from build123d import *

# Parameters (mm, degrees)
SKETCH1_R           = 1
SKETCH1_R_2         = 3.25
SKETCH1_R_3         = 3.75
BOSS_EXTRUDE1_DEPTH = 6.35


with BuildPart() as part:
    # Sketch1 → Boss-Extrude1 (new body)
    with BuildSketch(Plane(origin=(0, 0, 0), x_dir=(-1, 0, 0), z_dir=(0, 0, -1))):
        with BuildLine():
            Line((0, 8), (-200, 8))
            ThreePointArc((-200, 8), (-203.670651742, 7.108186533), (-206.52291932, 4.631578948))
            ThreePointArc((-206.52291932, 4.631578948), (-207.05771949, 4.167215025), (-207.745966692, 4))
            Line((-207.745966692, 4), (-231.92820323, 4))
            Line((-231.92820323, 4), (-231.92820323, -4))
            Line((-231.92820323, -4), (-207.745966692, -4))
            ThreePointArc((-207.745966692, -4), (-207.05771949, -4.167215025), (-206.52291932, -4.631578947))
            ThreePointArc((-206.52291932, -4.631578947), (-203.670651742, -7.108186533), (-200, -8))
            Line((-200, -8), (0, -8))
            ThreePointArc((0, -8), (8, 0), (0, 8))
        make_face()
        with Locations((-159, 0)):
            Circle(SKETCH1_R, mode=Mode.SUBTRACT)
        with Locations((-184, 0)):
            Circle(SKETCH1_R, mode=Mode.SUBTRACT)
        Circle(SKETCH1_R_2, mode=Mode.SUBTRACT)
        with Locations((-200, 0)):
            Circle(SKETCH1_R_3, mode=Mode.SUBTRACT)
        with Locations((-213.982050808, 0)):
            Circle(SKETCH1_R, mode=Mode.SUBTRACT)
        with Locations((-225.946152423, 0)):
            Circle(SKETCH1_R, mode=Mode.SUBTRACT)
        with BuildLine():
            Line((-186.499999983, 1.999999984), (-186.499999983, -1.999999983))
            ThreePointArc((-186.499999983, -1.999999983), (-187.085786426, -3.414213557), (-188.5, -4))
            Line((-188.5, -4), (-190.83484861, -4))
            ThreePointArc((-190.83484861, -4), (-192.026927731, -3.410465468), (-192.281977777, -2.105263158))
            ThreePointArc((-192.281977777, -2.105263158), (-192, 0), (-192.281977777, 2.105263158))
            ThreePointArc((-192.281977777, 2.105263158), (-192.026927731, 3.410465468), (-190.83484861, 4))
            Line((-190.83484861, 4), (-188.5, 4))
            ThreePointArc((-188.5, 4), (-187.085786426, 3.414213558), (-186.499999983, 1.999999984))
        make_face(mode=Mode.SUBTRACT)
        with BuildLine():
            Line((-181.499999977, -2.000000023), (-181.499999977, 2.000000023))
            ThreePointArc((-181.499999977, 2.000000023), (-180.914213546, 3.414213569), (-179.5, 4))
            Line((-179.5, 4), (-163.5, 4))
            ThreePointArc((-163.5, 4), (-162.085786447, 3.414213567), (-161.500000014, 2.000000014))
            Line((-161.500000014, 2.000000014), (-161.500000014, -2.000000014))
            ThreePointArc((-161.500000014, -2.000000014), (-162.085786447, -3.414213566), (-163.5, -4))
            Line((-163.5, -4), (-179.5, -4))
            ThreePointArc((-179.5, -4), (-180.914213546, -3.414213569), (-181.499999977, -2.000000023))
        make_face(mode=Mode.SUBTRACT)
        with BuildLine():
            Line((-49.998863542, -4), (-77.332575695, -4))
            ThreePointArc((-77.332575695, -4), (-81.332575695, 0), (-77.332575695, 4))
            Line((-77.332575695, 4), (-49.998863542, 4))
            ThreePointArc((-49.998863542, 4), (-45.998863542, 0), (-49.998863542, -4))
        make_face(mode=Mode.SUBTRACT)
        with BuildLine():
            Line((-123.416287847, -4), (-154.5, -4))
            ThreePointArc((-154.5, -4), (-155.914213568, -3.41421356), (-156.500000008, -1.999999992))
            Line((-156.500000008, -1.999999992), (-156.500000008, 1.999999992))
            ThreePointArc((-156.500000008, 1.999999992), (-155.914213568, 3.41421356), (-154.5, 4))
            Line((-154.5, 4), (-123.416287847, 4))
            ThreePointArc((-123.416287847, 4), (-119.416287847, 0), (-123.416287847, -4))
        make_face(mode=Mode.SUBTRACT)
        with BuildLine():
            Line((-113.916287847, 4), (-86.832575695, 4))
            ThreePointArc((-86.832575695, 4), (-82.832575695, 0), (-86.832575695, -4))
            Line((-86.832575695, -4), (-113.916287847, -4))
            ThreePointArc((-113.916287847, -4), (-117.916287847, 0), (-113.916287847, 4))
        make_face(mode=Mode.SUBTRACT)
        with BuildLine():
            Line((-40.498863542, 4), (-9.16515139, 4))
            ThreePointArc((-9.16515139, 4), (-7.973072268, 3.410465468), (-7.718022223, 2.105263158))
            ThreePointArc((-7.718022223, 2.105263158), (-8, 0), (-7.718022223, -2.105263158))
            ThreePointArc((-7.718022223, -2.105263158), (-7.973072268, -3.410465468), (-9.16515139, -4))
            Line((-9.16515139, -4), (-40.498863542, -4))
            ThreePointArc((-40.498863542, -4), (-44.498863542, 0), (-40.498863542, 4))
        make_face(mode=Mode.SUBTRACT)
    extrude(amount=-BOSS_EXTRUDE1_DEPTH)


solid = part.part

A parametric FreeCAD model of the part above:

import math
import FreeCAD as App
import Part
import Sketcher

V = App.Vector

doc = App.newDocument("Part")
params = doc.addObject("Spreadsheet::Sheet", "Params")
for row, (alias, value) in enumerate([
    ("sketch1_diameter", "2 mm"),
    ("sketch1_radius", "8 mm"),
    ("sketch1_radius2", "2 mm"),
    ("sketch1_radius3", "4 mm"),
    ("sketch1_diameter2", "7.5 mm"),
    ("pad1_length", "6.35 mm"),
], start=1):
    params.set(f"A{row}", alias)
    params.set(f"B{row}", "=" + value)
    params.setAlias(f"B{row}", alias)

body = doc.addObject("PartDesign::Body", "Body")

sketch1 = doc.addObject("Sketcher::SketchObject", "Sketch")
body.addObject(sketch1)
sketch1.AttachmentSupport = (doc.XY_Plane, [""])
sketch1.MapMode = "FlatFace"
sketch1.addGeometry([
    Part.LineSegment(V(0, 8, 0), V(200, 8, 0)),
    Part.ArcOfCircle(Part.Circle(V(200, 0, 0), V(0, 0, 1), 8), math.radians(35.37654), math.radians(90)),
    Part.ArcOfCircle(Part.Circle(V(207.745967, 5.5, 0), V(0, 0, 1), 1.5), math.radians(-144.62346), math.radians(-90)),
    Part.LineSegment(V(207.745967, 4, 0), V(231.928203, 4, 0)),
    Part.LineSegment(V(231.928203, 4, 0), V(231.928203, -4, 0)),
    Part.LineSegment(V(231.928203, -4, 0), V(207.745967, -4, 0)),
    Part.ArcOfCircle(Part.Circle(V(207.745967, -5.5, 0), V(0, 0, 1), 1.5), math.radians(90), math.radians(144.62346)),
    Part.ArcOfCircle(Part.Circle(V(200, 0, 0), V(0, 0, 1), 8), math.radians(-90), math.radians(-35.37654)),
    Part.LineSegment(V(200, -8, 0), V(0, -8, 0)),
    Part.ArcOfCircle(Part.Circle(V(0, 0, 0), V(0, 0, 1), 8), math.radians(90), math.radians(270)),
    Part.ArcOfCircle(Part.Circle(V(179.5, -2, 0), V(0, 0, 1), 2), math.radians(-90), math.radians(0)),
    Part.LineSegment(V(181.5, -2, 0), V(181.5, 2, 0)),
    Part.ArcOfCircle(Part.Circle(V(179.5, 2, 0), V(0, 0, 1), 2), math.radians(0), math.radians(90)),
    Part.LineSegment(V(179.5, 4, 0), V(163.5, 4, 0)),
    Part.ArcOfCircle(Part.Circle(V(163.5, 2, 0), V(0, 0, 1), 2), math.radians(90), math.radians(180)),
    Part.LineSegment(V(161.5, 2, 0), V(161.5, -2, 0)),
    Part.ArcOfCircle(Part.Circle(V(163.5, -2, 0), V(0, 0, 1), 2), math.radians(180), math.radians(270)),
    Part.LineSegment(V(163.5, -4, 0), V(179.5, -4, 0)),
    Part.Circle(V(225.946152, 0, 0), V(0, 0, 1), 1),
    Part.Circle(V(213.982051, 0, 0), V(0, 0, 1), 1),
    Part.Circle(V(200, 0, 0), V(0, 0, 1), 3.75),
    Part.ArcOfCircle(Part.Circle(V(188.5, 2, 0), V(0, 0, 1), 2), math.radians(90), math.radians(180)),
    Part.LineSegment(V(186.5, 2, 0), V(186.5, -2, 0)),
    Part.ArcOfCircle(Part.Circle(V(188.5, -2, 0), V(0, 0, 1), 2), math.radians(-180), math.radians(-90)),
    Part.LineSegment(V(188.5, -4, 0), V(190.834849, -4, 0)),
    Part.ArcOfCircle(Part.Circle(V(190.834849, -2.5, 0), V(0, 0, 1), 1.5), math.radians(-90), math.radians(15.257523)),
    Part.ArcOfCircle(Part.Circle(V(200, 0, 0), V(0, 0, 1), 8), math.radians(164.742477), math.radians(195.257523)),
    Part.ArcOfCircle(Part.Circle(V(190.834849, 2.5, 0), V(0, 0, 1), 1.5), math.radians(-15.257523), math.radians(90)),
    Part.LineSegment(V(190.834849, 4, 0), V(188.5, 4, 0)),
    Part.Circle(V(184, 0, 0), V(0, 0, 1), 1),
    Part.Circle(V(159, 0, 0), V(0, 0, 1), 1),
    Part.ArcOfCircle(Part.Circle(V(123.416288, 0, 0), V(0, 0, 1), 4), math.radians(90), math.radians(270)),
    Part.LineSegment(V(123.416288, -4, 0), V(154.5, -4, 0)),
    Part.ArcOfCircle(Part.Circle(V(154.5, -2, 0), V(0, 0, 1), 2), math.radians(-90), math.radians(0)),
    Part.LineSegment(V(156.5, -2, 0), V(156.5, 2, 0)),
    Part.ArcOfCircle(Part.Circle(V(154.5, 2, 0), V(0, 0, 1), 2), math.radians(0), math.radians(90)),
    Part.LineSegment(V(154.5, 4, 0), V(123.416288, 4, 0)),
    Part.ArcOfCircle(Part.Circle(V(113.916288, 0, 0), V(0, 0, 1), 4), math.radians(-90), math.radians(90)),
    Part.LineSegment(V(113.916288, 4, 0), V(86.832576, 4, 0)),
    Part.ArcOfCircle(Part.Circle(V(86.832576, 0, 0), V(0, 0, 1), 4), math.radians(90), math.radians(270)),
    Part.LineSegment(V(86.832576, -4, 0), V(113.916288, -4, 0)),
    Part.ArcOfCircle(Part.Circle(V(49.998864, 0, 0), V(0, 0, 1), 4), math.radians(90), math.radians(270)),
    Part.LineSegment(V(49.998864, -4, 0), V(77.332576, -4, 0)),
    Part.ArcOfCircle(Part.Circle(V(77.332576, 0, 0), V(0, 0, 1), 4), math.radians(-90), math.radians(90)),
    Part.LineSegment(V(77.332576, 4, 0), V(49.998864, 4, 0)),
    Part.ArcOfCircle(Part.Circle(V(40.498864, 0, 0), V(0, 0, 1), 4), math.radians(-90), math.radians(90)),
    Part.LineSegment(V(40.498864, 4, 0), V(9.165151, 4, 0)),
    Part.ArcOfCircle(Part.Circle(V(9.165151, 2.5, 0), V(0, 0, 1), 1.5), math.radians(90), math.radians(195.257523)),
    Part.ArcOfCircle(Part.Circle(V(0, 0, 0), V(0, 0, 1), 8), math.radians(-15.257523), math.radians(15.257523)),
    Part.ArcOfCircle(Part.Circle(V(9.165151, -2.5, 0), V(0, 0, 1), 1.5), math.radians(164.742477), math.radians(270)),
    Part.LineSegment(V(9.165151, -4, 0), V(40.498864, -4, 0)),
    Part.Circle(V(0, 0, 0), V(0, 0, 1), 3.25),
], False)
sketch1.addConstraint([
    Sketcher.Constraint("Tangent", 0, 2, 1, 2),
    Sketcher.Constraint("Tangent", 1, 1, 2, 1),
    Sketcher.Constraint("Tangent", 2, 2, 3, 1),
    Sketcher.Constraint("Coincident", 3, 2, 4, 1),
    Sketcher.Constraint("Coincident", 4, 2, 5, 1),
    Sketcher.Constraint("Tangent", 5, 2, 6, 1),
    Sketcher.Constraint("Tangent", 6, 2, 7, 2),
    Sketcher.Constraint("Tangent", 7, 1, 8, 1),
    Sketcher.Constraint("Tangent", 8, 2, 9, 2),
    Sketcher.Constraint("Tangent", 9, 1, 0, 1),
    Sketcher.Constraint("Tangent", 10, 2, 11, 1),
    Sketcher.Constraint("Tangent", 11, 2, 12, 1),
    Sketcher.Constraint("Tangent", 12, 2, 13, 1),
    Sketcher.Constraint("Tangent", 13, 2, 14, 1),
    Sketcher.Constraint("Tangent", 14, 2, 15, 1),
    Sketcher.Constraint("Tangent", 15, 2, 16, 1),
    Sketcher.Constraint("Tangent", 16, 2, 17, 1),
    Sketcher.Constraint("Tangent", 17, 2, 10, 1),
    Sketcher.Constraint("Tangent", 21, 2, 22, 1),
    Sketcher.Constraint("Tangent", 22, 2, 23, 1),
    Sketcher.Constraint("Tangent", 23, 2, 24, 1),
    Sketcher.Constraint("Tangent", 24, 2, 25, 1),
    Sketcher.Constraint("Tangent", 25, 2, 26, 2),
    Sketcher.Constraint("Tangent", 26, 1, 27, 1),
    Sketcher.Constraint("Tangent", 27, 2, 28, 1),
    Sketcher.Constraint("Tangent", 28, 2, 21, 1),
    Sketcher.Constraint("Tangent", 31, 2, 32, 1),
    Sketcher.Constraint("Tangent", 32, 2, 33, 1),
    Sketcher.Constraint("Tangent", 33, 2, 34, 1),
    Sketcher.Constraint("Tangent", 34, 2, 35, 1),
    Sketcher.Constraint("Tangent", 35, 2, 36, 1),
    Sketcher.Constraint("Tangent", 36, 2, 31, 1),
    Sketcher.Constraint("Tangent", 37, 2, 38, 1),
    Sketcher.Constraint("Tangent", 38, 2, 39, 1),
    Sketcher.Constraint("Tangent", 39, 2, 40, 1),
    Sketcher.Constraint("Tangent", 40, 2, 37, 1),
    Sketcher.Constraint("Tangent", 41, 2, 42, 1),
    Sketcher.Constraint("Tangent", 42, 2, 43, 1),
    Sketcher.Constraint("Tangent", 43, 2, 44, 1),
    Sketcher.Constraint("Tangent", 44, 2, 41, 1),
    Sketcher.Constraint("Tangent", 45, 2, 46, 1),
    Sketcher.Constraint("Tangent", 46, 2, 47, 1),
    Sketcher.Constraint("Tangent", 47, 2, 48, 2),
    Sketcher.Constraint("Tangent", 48, 1, 49, 1),
    Sketcher.Constraint("Tangent", 49, 2, 50, 1),
    Sketcher.Constraint("Tangent", 50, 2, 45, 1),
    Sketcher.Constraint("Horizontal", 0),
    Sketcher.Constraint("Horizontal", 3),
    Sketcher.Constraint("Vertical", 4),
    Sketcher.Constraint("Horizontal", 5),
    Sketcher.Constraint("Horizontal", 8),
    Sketcher.Constraint("Vertical", 11),
    Sketcher.Constraint("Horizontal", 13),
    Sketcher.Constraint("Vertical", 15),
    Sketcher.Constraint("Horizontal", 17),
    Sketcher.Constraint("Vertical", 22),
    Sketcher.Constraint("Horizontal", 24),
    Sketcher.Constraint("Horizontal", 28),
    Sketcher.Constraint("Horizontal", 32),
    Sketcher.Constraint("Vertical", 34),
    Sketcher.Constraint("Horizontal", 36),
    Sketcher.Constraint("Horizontal", 38),
    Sketcher.Constraint("Horizontal", 40),
    Sketcher.Constraint("Horizontal", 42),
    Sketcher.Constraint("Horizontal", 44),
    Sketcher.Constraint("Horizontal", 46),
    Sketcher.Constraint("Horizontal", 50),
    Sketcher.Constraint("Coincident", 9, 3, -1, 1),
    Sketcher.Constraint("Coincident", 48, 3, -1, 1),
    Sketcher.Constraint("Coincident", 51, 3, -1, 1),
    Sketcher.Constraint("Coincident", 7, 3, 1, 3),
    Sketcher.Constraint("Coincident", 20, 3, 1, 3),
    Sketcher.Constraint("Coincident", 26, 3, 1, 3),
    Sketcher.Constraint("Equal", 2, 6),
    Sketcher.Constraint("Equal", 1, 7),
    Sketcher.Constraint("Equal", 10, 12),
    Sketcher.Constraint("Equal", 12, 14),
    Sketcher.Constraint("Equal", 14, 16),
    Sketcher.Constraint("Equal", 18, 19),
    Sketcher.Constraint("Equal", 16, 21),
    Sketcher.Constraint("Equal", 21, 23),
    Sketcher.Constraint("Equal", 6, 25),
    Sketcher.Constraint("Equal", 9, 26),
    Sketcher.Constraint("Equal", 25, 27),
    Sketcher.Constraint("Equal", 19, 29),
    Sketcher.Constraint("Equal", 29, 30),
    Sketcher.Constraint("Equal", 23, 33),
    Sketcher.Constraint("Equal", 33, 35),
    Sketcher.Constraint("Equal", 31, 37),
    Sketcher.Constraint("Equal", 39, 41),
    Sketcher.Constraint("Equal", 43, 45),
    Sketcher.Constraint("Equal", 27, 47),
    Sketcher.Constraint("Equal", 26, 48),
    Sketcher.Constraint("Equal", 47, 49),
    Sketcher.Constraint("PointOnObject", 18, 3, -1),
    Sketcher.Constraint("PointOnObject", 19, 3, -1),
    Sketcher.Constraint("PointOnObject", 29, 3, -1),
    Sketcher.Constraint("PointOnObject", 30, 3, -1),
    Sketcher.Constraint("PointOnObject", 31, 3, -1),
    Sketcher.Constraint("PointOnObject", 37, 3, -1),
    Sketcher.Constraint("PointOnObject", 41, 3, -1),
    Sketcher.Constraint("PointOnObject", 45, 3, -1),
    Sketcher.Constraint("Horizontal", 14, 3, 21, 3),
    Sketcher.Constraint("Horizontal", 16, 3, 23, 3),
    Sketcher.Constraint("Horizontal", 23, 3, 33, 3),
    Sketcher.Constraint("Horizontal", 21, 3, 35, 3),
    Sketcher.Constraint("Horizontal", 3, 2, 12, 2),
    Sketcher.Constraint("Horizontal", 5, 2, 16, 2),
    Sketcher.Constraint("Diameter", 18, 2.0),
    Sketcher.Constraint("Radius", 1, 8.0),
    Sketcher.Constraint("Radius", 10, 2.0),
    Sketcher.Constraint("Radius", 31, 4.0),
    Sketcher.Constraint("Diameter", 20, 7.5),
    Sketcher.Constraint("Diameter", 51, 6.5),
    Sketcher.Constraint("Radius", 2, 1.5),
    Sketcher.Constraint("DistanceX", 0, 1, 0, 2, 200.0),
    Sketcher.Constraint("DistanceX", 13, 2, 13, 1, 16.0),
    Sketcher.Constraint("DistanceX", -1, 1, 29, 3, 184.0),
    Sketcher.Constraint("DistanceX", -1, 1, 30, 3, 159.0),
    Sketcher.Constraint("DistanceX", -1, 1, 10, 3, 179.5),
    Sketcher.Constraint("DistanceX", -1, 1, 21, 3, 188.5),
    Sketcher.Constraint("DistanceX", -1, 1, 33, 3, 154.5),
    Sketcher.Constraint("DistanceX", 3, 1, 3, 2, 24.182237),
    Sketcher.Constraint("DistanceX", 32, 1, 32, 2, 31.083712),
    Sketcher.Constraint("DistanceX", 38, 2, 38, 1, 27.083712),
    Sketcher.Constraint("DistanceX", 42, 1, 42, 2, 27.333712),
    Sketcher.Constraint("DistanceX", 46, 2, 46, 1, 31.333712),
    Sketcher.Constraint("DistanceX", -1, 1, 19, 3, 213.982051),
    Sketcher.Constraint("DistanceX", -1, 1, 18, 3, 225.946152),
    Sketcher.Constraint("DistanceX", -1, 1, 37, 3, 113.916288),
    Sketcher.Constraint("DistanceX", -1, 1, 41, 3, 49.998864),
])
sketch1.setExpression("Constraints[108]", "Params.sketch1_diameter")
sketch1.setExpression("Constraints[109]", "Params.sketch1_radius")
sketch1.setExpression("Constraints[110]", "Params.sketch1_radius2")
sketch1.setExpression("Constraints[111]", "Params.sketch1_radius3")
sketch1.setExpression("Constraints[112]", "Params.sketch1_diameter2")
pad1 = doc.addObject("PartDesign::Pad", "Pad")
body.addObject(pad1)
pad1.Profile = sketch1
pad1.setExpression("Length", "Params.pad1_length")

doc.recompute()
